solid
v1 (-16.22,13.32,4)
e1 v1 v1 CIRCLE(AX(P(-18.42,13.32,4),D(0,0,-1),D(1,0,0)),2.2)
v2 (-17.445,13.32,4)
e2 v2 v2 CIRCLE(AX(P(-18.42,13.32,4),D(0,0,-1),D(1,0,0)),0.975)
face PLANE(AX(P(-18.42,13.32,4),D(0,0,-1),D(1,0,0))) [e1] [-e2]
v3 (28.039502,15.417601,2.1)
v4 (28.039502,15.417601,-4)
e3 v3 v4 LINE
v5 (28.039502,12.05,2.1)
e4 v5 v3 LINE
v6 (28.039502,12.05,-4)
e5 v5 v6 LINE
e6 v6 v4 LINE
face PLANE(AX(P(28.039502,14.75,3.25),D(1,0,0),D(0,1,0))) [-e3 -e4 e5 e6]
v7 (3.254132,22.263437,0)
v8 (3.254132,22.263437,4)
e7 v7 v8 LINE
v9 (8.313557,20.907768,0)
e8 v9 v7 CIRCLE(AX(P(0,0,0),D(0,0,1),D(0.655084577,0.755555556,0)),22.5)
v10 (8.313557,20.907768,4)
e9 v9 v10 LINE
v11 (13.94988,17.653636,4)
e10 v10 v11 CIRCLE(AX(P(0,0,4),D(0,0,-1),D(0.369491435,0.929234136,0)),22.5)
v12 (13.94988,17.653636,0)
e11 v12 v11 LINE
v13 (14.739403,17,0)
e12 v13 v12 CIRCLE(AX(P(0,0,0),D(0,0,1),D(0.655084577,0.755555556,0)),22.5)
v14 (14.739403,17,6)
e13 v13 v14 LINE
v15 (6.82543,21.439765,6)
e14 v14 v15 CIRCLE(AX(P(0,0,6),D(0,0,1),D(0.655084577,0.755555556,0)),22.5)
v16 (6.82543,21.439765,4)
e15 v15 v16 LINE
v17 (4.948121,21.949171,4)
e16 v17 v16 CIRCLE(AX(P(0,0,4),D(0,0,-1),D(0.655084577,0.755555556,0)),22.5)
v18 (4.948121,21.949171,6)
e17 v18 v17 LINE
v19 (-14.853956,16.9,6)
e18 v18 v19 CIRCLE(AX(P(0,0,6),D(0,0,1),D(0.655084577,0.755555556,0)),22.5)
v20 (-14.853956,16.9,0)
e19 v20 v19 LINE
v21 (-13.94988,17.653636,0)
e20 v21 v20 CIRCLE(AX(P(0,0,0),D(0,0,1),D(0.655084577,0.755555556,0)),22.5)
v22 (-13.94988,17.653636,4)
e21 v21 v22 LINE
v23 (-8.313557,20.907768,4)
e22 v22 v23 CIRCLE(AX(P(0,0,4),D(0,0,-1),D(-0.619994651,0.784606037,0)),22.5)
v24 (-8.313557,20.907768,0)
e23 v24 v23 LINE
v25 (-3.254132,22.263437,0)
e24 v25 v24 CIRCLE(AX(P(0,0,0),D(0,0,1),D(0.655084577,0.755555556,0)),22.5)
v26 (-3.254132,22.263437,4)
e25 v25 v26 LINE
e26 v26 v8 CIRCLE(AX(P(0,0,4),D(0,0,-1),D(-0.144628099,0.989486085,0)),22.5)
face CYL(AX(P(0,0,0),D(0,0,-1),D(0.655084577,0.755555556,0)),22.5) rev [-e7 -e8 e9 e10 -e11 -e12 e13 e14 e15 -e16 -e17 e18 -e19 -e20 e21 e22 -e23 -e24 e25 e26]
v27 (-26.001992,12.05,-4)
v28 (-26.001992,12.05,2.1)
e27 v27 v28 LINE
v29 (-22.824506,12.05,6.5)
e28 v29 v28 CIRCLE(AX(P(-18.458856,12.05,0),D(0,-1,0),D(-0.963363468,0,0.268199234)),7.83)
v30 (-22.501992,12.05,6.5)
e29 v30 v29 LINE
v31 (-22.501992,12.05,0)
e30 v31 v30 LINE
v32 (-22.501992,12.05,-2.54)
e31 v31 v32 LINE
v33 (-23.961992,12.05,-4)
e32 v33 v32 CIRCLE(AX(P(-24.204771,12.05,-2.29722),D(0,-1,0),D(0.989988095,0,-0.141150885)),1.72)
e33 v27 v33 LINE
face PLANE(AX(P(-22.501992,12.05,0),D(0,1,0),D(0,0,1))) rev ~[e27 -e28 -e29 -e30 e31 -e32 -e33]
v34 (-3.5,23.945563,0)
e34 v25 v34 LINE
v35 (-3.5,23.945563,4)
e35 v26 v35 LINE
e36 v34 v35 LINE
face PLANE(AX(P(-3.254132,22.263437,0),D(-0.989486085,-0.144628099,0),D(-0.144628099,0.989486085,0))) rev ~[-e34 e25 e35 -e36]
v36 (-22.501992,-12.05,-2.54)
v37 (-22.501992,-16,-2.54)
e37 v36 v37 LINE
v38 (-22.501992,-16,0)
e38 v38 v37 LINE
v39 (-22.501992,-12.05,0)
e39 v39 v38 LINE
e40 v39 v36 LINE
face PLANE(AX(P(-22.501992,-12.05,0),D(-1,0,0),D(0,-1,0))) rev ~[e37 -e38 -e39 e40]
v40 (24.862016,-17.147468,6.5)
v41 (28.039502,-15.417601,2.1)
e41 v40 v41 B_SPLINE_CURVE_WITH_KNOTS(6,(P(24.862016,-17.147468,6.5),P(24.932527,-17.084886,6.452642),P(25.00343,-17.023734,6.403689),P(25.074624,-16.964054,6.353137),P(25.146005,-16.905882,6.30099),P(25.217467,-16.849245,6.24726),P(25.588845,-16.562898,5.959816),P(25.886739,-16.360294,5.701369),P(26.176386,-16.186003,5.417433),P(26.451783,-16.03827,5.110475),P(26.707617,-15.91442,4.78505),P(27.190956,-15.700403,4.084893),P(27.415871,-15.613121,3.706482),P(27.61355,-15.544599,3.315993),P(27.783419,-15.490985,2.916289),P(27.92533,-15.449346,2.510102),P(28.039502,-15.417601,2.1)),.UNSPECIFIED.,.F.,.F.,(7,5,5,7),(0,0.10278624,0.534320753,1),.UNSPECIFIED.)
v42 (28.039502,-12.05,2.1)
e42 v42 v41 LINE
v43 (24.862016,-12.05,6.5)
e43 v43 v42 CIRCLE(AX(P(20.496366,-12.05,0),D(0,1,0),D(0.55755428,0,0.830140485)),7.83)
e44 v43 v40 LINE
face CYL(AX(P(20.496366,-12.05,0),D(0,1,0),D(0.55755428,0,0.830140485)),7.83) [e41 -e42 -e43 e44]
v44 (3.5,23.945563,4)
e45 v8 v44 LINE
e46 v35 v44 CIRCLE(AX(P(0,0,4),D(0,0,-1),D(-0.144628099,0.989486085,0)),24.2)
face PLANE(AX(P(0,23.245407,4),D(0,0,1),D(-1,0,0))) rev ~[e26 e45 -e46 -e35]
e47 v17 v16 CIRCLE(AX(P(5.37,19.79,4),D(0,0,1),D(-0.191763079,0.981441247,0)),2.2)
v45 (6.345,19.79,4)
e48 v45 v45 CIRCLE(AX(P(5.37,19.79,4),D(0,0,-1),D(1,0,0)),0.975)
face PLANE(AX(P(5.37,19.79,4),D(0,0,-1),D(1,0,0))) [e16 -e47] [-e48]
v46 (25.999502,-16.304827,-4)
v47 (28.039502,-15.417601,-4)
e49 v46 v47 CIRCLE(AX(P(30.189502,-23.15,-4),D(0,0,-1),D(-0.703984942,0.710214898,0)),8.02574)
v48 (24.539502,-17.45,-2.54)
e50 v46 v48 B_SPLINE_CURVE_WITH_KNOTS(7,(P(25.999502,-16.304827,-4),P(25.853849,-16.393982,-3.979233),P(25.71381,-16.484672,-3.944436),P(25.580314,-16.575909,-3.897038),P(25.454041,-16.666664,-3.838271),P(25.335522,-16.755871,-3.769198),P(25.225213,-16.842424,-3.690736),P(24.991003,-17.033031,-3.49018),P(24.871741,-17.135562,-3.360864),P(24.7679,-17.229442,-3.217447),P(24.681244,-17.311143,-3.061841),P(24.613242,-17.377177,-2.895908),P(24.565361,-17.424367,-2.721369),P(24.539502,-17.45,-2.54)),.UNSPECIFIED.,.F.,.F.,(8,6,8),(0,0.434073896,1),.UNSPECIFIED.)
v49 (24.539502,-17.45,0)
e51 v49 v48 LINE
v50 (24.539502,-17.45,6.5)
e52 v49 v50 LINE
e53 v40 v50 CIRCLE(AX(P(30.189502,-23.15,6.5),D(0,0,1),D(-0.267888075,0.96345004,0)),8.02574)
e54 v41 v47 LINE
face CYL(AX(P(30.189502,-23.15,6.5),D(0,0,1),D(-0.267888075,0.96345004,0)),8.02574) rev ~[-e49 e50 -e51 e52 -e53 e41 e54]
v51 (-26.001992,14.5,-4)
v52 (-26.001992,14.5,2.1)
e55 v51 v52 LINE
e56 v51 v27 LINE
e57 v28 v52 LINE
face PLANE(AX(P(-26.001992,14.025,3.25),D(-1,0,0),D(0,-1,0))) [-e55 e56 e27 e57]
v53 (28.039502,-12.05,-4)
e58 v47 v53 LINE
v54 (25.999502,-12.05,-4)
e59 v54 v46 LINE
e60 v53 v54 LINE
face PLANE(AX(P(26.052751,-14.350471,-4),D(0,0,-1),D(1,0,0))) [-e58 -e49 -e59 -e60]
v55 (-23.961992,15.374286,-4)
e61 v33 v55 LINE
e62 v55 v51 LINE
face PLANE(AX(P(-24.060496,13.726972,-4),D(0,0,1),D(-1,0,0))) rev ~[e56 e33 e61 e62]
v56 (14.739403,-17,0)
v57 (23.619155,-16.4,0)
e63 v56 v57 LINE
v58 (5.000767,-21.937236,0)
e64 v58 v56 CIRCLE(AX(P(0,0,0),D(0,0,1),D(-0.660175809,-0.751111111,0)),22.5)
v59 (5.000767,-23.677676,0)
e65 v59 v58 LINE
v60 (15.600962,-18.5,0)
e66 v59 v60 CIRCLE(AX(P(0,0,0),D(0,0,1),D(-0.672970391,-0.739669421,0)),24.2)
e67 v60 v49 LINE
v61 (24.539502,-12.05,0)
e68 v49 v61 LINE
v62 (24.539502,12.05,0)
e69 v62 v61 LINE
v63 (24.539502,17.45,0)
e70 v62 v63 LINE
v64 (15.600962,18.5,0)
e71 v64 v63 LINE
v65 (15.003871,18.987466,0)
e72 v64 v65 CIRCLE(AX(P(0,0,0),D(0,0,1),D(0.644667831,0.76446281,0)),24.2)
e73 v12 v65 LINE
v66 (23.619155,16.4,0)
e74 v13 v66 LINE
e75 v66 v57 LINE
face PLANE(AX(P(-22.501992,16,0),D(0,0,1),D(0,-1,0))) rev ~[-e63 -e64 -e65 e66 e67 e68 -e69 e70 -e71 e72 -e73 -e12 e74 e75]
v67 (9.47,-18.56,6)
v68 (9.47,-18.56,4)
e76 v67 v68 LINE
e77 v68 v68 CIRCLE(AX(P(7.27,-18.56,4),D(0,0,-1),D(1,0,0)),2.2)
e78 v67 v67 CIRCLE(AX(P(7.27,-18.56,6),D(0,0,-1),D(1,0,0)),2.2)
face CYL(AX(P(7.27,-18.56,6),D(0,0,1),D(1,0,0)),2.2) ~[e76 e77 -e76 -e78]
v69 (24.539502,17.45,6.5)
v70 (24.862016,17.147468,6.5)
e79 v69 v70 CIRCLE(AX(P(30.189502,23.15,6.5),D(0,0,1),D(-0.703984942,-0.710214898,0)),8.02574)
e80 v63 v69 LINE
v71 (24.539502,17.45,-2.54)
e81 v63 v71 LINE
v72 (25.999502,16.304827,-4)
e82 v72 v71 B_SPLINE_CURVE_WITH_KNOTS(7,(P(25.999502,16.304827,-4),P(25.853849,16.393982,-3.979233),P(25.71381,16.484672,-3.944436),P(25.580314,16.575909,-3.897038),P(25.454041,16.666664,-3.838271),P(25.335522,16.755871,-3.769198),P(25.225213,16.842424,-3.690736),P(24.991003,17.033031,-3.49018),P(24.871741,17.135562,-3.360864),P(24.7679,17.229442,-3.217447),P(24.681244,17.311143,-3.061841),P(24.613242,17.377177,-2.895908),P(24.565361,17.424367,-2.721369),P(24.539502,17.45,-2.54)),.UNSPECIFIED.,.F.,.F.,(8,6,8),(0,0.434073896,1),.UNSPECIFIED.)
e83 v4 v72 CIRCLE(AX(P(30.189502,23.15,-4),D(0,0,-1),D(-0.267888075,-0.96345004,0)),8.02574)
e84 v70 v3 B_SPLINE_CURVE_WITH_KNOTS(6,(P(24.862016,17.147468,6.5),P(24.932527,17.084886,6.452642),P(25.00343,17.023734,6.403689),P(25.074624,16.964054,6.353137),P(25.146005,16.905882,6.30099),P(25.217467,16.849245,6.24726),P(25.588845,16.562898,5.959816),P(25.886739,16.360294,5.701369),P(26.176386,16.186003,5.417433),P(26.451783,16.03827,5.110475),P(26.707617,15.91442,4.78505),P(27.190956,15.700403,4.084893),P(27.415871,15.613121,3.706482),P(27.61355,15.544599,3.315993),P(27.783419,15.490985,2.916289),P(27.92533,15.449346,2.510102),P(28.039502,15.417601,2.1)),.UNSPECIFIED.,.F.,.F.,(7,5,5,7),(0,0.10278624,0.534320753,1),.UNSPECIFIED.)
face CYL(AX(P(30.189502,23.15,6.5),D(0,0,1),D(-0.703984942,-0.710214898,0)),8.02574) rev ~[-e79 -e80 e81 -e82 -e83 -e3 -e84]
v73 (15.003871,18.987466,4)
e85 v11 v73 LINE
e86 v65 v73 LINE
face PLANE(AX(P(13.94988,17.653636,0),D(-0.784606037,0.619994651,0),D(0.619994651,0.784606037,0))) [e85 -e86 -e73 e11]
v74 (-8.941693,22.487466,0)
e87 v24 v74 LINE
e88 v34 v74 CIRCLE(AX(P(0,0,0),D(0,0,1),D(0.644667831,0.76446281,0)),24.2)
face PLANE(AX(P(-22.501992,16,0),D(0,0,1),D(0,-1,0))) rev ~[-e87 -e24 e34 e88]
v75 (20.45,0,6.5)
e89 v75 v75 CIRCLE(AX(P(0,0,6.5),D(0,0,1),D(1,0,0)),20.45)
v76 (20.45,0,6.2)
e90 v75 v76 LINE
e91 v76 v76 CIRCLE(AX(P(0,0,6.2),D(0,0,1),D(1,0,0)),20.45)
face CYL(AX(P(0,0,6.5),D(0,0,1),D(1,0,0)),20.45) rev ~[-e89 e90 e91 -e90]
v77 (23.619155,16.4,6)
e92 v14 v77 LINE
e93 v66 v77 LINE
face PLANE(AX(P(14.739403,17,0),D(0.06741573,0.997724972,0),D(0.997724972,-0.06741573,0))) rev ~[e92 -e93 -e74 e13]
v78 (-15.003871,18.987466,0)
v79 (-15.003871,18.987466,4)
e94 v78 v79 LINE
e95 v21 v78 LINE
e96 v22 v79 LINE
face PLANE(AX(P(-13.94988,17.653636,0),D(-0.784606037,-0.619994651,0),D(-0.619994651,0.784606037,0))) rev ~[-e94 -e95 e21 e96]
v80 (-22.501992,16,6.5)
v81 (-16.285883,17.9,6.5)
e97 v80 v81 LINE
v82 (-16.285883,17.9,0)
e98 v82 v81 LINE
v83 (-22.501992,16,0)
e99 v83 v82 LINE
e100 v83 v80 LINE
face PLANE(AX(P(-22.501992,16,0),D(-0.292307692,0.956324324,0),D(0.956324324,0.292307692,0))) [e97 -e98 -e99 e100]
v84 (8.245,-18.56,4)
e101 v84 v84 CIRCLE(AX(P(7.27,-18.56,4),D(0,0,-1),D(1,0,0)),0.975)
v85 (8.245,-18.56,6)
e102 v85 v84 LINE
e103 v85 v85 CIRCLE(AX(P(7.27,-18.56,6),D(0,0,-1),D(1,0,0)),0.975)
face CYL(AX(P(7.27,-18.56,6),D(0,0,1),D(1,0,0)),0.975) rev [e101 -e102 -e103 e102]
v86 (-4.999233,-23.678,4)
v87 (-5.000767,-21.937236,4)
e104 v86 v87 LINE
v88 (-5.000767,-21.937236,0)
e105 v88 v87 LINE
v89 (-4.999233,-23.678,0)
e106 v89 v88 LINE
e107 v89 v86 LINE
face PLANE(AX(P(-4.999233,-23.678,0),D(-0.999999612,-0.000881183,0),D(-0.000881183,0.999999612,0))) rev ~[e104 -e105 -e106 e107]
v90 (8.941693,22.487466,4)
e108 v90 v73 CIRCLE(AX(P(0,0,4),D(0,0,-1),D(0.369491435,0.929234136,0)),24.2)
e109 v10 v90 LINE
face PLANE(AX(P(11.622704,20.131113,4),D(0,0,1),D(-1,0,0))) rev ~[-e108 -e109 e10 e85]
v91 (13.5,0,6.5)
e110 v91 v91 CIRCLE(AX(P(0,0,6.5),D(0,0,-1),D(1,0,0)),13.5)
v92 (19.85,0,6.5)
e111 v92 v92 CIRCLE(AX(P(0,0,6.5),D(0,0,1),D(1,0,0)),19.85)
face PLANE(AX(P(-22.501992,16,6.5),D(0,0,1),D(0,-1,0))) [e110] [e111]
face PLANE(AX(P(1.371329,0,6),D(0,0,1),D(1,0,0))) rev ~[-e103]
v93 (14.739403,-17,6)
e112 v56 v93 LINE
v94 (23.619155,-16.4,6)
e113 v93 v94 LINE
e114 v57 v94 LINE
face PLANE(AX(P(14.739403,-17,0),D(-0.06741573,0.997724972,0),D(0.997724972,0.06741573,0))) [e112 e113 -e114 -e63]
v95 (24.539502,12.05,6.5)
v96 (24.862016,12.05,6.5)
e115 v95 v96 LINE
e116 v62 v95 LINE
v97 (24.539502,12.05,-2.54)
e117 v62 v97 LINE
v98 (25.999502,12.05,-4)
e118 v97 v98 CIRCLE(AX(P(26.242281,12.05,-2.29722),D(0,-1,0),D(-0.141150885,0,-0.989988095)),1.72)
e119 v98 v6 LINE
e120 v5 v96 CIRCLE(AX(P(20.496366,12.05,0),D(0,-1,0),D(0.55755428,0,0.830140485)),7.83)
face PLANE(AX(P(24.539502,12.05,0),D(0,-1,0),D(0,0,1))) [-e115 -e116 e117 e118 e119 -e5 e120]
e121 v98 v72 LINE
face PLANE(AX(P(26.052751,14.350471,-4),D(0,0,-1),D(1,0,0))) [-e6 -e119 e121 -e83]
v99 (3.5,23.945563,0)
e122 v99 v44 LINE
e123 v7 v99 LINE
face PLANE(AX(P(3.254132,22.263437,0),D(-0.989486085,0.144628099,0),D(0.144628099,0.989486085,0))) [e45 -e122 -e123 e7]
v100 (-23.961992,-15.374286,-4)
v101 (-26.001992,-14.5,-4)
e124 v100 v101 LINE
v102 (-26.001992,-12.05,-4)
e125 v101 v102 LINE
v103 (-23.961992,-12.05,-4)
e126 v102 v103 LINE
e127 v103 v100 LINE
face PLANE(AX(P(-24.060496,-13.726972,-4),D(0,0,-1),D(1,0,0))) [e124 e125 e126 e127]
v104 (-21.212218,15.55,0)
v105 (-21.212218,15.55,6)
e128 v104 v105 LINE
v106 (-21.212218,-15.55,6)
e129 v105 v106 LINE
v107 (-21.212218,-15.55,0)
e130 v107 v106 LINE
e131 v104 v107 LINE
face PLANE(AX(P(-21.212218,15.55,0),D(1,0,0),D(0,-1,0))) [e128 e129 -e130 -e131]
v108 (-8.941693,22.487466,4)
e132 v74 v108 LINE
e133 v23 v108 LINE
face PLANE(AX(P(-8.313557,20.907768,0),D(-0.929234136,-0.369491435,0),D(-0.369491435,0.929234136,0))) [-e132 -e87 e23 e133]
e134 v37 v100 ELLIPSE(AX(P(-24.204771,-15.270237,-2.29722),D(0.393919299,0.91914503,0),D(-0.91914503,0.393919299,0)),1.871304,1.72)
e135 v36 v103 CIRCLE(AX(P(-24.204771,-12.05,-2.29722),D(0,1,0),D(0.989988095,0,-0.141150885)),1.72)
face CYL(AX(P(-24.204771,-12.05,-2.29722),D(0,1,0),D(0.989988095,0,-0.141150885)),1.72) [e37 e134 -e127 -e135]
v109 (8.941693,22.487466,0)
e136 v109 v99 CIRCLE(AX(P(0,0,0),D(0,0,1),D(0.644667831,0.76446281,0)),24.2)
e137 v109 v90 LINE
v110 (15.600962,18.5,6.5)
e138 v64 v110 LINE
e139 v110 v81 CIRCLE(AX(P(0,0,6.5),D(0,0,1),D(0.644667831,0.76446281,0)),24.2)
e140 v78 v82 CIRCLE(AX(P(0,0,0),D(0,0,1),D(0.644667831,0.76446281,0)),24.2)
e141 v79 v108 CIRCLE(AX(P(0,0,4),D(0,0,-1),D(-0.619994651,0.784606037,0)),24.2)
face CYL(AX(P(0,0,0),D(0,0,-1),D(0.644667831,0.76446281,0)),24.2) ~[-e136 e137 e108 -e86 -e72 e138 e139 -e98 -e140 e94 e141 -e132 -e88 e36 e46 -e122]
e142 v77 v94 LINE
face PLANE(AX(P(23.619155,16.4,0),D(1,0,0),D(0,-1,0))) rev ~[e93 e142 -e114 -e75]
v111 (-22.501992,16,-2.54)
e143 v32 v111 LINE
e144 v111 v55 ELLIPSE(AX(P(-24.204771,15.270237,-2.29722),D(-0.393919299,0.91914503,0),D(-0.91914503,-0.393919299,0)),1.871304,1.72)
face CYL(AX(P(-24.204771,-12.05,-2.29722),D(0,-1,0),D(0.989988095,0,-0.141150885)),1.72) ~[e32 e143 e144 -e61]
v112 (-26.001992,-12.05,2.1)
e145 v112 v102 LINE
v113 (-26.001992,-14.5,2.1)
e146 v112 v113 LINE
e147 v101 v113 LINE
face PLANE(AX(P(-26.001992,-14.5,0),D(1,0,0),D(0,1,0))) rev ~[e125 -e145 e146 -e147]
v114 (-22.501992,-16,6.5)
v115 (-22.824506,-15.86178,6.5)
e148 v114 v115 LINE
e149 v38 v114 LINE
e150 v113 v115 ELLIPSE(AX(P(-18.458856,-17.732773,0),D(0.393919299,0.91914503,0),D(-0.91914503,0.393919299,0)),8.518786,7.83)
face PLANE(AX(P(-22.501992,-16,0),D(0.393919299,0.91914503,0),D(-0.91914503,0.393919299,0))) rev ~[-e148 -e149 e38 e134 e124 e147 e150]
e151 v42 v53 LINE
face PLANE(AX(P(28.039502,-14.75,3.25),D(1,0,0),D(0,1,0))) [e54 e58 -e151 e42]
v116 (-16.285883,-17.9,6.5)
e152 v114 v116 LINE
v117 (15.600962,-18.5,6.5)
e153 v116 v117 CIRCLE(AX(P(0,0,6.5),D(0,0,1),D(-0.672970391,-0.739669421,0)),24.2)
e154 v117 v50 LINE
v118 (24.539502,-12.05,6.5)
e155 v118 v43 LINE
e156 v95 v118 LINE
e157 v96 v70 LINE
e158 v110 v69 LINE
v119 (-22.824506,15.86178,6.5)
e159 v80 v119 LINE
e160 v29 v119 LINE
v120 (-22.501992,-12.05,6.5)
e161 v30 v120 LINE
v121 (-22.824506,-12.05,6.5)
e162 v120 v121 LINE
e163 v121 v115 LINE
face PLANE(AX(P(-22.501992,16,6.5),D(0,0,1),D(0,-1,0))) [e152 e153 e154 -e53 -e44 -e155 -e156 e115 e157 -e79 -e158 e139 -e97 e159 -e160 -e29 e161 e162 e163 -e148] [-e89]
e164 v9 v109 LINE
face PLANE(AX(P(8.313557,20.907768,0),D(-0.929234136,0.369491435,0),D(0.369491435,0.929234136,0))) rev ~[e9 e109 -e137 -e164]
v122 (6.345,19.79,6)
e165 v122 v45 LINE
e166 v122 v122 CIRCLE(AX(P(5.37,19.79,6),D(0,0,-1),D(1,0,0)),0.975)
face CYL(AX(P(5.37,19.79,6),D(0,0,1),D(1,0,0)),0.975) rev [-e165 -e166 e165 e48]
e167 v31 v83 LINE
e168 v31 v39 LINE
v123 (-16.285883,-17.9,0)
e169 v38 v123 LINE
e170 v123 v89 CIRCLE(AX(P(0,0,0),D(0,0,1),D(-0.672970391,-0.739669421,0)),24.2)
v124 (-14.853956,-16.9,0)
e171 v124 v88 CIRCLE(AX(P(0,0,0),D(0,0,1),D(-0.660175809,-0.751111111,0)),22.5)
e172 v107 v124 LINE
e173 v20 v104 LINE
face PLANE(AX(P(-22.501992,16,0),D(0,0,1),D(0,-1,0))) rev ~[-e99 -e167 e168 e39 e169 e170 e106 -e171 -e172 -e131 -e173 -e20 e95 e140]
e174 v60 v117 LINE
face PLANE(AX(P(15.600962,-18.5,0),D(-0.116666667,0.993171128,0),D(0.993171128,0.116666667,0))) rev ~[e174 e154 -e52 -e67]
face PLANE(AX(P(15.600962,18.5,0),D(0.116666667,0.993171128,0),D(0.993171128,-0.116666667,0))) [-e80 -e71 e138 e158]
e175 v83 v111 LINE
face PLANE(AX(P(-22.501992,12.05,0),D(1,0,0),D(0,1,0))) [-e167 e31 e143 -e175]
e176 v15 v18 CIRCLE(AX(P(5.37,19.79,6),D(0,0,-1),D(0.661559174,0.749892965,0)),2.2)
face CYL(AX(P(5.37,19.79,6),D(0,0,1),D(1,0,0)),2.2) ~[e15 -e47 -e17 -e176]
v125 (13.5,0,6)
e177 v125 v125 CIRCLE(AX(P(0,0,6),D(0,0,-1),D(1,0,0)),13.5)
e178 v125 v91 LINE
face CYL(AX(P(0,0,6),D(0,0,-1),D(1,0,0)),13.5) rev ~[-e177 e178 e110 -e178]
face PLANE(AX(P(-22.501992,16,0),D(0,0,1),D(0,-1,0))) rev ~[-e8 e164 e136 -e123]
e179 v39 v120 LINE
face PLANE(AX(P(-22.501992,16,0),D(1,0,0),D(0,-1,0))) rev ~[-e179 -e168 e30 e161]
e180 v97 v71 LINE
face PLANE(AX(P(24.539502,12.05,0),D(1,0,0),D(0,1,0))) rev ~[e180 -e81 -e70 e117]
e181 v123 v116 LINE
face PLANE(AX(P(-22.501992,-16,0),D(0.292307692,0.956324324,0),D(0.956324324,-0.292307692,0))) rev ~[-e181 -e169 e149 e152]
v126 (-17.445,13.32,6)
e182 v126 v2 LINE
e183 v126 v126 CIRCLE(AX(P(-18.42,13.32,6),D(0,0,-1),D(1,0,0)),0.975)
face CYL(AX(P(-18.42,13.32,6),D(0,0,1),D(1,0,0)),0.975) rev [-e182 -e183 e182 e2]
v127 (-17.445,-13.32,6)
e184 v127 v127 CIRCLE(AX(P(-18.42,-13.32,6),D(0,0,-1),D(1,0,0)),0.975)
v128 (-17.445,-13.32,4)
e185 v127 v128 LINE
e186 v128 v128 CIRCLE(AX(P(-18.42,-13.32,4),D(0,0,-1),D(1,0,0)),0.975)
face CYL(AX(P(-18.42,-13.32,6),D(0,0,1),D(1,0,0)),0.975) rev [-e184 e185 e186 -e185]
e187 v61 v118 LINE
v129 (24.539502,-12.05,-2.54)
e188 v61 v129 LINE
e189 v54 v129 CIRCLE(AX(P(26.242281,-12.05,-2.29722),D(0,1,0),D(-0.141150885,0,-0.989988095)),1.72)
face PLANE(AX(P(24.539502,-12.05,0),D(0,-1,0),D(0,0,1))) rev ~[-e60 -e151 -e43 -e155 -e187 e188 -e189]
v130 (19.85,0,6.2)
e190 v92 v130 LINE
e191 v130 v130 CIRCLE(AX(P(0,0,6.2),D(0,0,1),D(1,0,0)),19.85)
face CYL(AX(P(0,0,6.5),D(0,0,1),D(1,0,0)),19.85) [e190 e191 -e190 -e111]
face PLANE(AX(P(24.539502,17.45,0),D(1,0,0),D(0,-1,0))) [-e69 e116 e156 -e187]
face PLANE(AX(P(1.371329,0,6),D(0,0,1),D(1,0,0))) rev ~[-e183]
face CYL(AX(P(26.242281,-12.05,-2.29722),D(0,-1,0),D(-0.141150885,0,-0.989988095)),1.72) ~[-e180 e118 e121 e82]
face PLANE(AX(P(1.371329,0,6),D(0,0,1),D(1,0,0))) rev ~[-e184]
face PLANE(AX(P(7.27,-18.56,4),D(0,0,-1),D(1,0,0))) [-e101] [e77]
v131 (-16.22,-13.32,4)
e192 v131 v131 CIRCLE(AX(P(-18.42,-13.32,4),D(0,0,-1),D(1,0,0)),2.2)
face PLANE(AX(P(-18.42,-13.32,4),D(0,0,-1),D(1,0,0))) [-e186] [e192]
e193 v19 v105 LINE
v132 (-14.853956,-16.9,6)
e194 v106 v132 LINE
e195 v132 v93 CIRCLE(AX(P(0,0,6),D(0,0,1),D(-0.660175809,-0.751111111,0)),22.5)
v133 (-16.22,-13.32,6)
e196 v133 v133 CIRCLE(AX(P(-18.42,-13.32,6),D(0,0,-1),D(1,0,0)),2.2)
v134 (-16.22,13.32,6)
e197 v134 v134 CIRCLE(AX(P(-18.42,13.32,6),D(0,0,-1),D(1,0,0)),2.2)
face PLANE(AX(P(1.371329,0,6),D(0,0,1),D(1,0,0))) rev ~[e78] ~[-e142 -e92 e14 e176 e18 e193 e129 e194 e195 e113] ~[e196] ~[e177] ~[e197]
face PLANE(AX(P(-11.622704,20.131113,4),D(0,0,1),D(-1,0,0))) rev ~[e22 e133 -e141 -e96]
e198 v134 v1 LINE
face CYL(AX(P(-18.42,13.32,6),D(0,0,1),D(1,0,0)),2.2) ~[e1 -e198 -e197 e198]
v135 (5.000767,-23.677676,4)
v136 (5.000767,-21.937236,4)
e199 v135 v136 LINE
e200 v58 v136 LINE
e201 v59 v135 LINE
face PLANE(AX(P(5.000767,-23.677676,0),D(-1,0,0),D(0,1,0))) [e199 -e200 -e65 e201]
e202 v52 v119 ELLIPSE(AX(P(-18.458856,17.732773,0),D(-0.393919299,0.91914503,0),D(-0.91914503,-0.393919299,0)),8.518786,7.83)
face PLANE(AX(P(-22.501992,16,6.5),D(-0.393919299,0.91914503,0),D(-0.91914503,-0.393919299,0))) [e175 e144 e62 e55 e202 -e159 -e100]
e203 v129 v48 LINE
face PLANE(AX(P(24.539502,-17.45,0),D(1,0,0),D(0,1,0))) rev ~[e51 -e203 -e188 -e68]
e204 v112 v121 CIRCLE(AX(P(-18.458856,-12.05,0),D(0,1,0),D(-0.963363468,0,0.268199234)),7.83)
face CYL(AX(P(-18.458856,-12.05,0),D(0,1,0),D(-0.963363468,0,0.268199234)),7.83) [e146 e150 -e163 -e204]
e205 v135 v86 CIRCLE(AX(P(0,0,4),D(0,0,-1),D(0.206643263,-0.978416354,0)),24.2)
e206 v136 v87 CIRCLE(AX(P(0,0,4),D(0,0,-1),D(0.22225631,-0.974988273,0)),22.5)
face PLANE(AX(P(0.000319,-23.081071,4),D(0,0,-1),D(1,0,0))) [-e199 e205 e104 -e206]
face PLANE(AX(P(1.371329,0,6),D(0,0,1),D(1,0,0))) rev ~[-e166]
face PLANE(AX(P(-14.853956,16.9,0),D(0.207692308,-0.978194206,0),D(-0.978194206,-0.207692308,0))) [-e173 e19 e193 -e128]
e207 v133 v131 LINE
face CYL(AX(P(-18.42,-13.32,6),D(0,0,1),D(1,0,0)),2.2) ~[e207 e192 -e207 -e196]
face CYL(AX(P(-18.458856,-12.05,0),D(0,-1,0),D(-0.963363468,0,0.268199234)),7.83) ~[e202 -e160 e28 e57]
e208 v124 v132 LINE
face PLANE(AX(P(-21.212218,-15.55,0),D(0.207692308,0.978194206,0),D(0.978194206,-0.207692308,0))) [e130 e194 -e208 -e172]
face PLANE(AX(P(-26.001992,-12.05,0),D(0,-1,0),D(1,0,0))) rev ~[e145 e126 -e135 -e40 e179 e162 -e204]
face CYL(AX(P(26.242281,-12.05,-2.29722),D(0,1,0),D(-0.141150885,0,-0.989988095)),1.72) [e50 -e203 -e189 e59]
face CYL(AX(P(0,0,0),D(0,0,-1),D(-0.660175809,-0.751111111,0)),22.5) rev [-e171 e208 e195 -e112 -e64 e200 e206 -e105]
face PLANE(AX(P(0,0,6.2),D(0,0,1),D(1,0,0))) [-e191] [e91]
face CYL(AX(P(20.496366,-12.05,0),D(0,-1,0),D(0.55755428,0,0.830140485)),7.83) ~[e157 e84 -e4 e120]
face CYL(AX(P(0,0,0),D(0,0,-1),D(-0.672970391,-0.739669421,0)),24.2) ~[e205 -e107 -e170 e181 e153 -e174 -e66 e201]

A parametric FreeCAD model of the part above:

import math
import FreeCAD as App
import Part
import Sketcher
from FreeCAD import Vector

doc = App.newDocument("Part")
body = doc.addObject("PartDesign::Body", "Body")

# Sketch on XY plane
sketch1 = body.newObject("Sketcher::SketchObject", "Sketch")
sketch1.AttachmentSupport = (doc.getObject("XY_Plane"), [""])
sketch1.MapMode = "FlatFace"
sketch1.addGeometry([
    Part.LineSegment(Vector(-23, 16, 0), Vector(-23, -16, 0)),  # 0
    Part.LineSegment(Vector(-23, -16, 0), Vector(-16, -18, 0)),  # 1
    Part.ArcOfCircle(Part.Circle(Vector(0, 0, 0), Vector(0, 0, 1), 24), math.radians(-132), math.radians(-50)),  # 2
    Part.LineSegment(Vector(16, -18, 0), Vector(25, -17, 0)),  # 3
    Part.LineSegment(Vector(25, -17, 0), Vector(25, 17, 0)),  # 4
    Part.LineSegment(Vector(25, 17, 0), Vector(16, 18, 0)),  # 5
    Part.ArcOfCircle(Part.Circle(Vector(0, 0, 0), Vector(0, 0, 1), 24), math.radians(50), math.radians(132)),  # 6
    Part.LineSegment(Vector(-16, 18, 0), Vector(-23, 16, 0)),  # 7
], False)
sketch1.addConstraint([
    Sketcher.Constraint("Coincident", 0, 2, 1, 1),
    Sketcher.Constraint("Coincident", 1, 2, 2, 1),
    Sketcher.Constraint("Coincident", 2, 2, 3, 1),
    Sketcher.Constraint("Coincident", 3, 2, 4, 1),
    Sketcher.Constraint("Coincident", 4, 2, 5, 1),
    Sketcher.Constraint("Coincident", 5, 2, 6, 1),
    Sketcher.Constraint("Coincident", 6, 2, 7, 1),
    Sketcher.Constraint("Coincident", 7, 2, 0, 1),
    Sketcher.Constraint("Vertical", 0),
    Sketcher.Constraint("Vertical", 4),
    Sketcher.Constraint("Coincident", 2, 3, -1, 1),
    Sketcher.Constraint("Coincident", 6, 3, -1, 1),
    Sketcher.Constraint("Equal", 2, 6),
    Sketcher.Constraint("Vertical", 2, 2, 5, 2),
    Sketcher.Constraint("Vertical", 1, 2, 6, 2),
    Sketcher.Constraint("Equal", 3, 5),
    Sketcher.Constraint("Equal", 1, 7),
    Sketcher.Constraint("Radius", 2, 24.2),
    Sketcher.Constraint("DistanceY", 0, 2, 0, 1, 32.0),
    Sketcher.Constraint("Distance", 3, 9.0),
    Sketcher.Constraint("DistanceY", 4, 1, 4, 2, 34.9),
    Sketcher.Constraint("DistanceY", 2, 2, 5, 2, 37.0),
    Sketcher.Constraint("Distance", 1, 6.5),
    Sketcher.Constraint("DistanceY", 1, 2, -1, 1, 17.9),
])
pad1 = body.newObject("PartDesign::Pad", "Pad")
pad1.Profile = sketch1
pad1.Length = 6.5

# Sketch on XY plane
sketch2 = body.newObject("Sketcher::SketchObject", "Sketch001")
sketch2.AttachmentSupport = (doc.getObject("XY_Plane"), [""])
sketch2.MapMode = "FlatFace"
sketch2.addGeometry([
    Part.LineSegment(Vector(-15, 17, 0), Vector(-21, 16, 0)),  # 0
    Part.LineSegment(Vector(-21, 16, 0), Vector(-21, -16, 0)),  # 1
    Part.LineSegment(Vector(-21, -16, 0), Vector(-15, -17, 0)),  # 2
    Part.ArcOfCircle(Part.Circle(Vector(0, 0, 0), Vector(0, 0, 1), 22), math.radians(-131), math.radians(-49)),  # 3
    Part.LineSegment(Vector(15, -17, 0), Vector(24, -16, 0)),  # 4
    Part.LineSegment(Vector(24, -16, 0), Vector(24, 16, 0)),  # 5
    Part.LineSegment(Vector(24, 16, 0), Vector(15, 17, 0)),  # 6
    Part.ArcOfCircle(Part.Circle(Vector(0, 0, 0), Vector(0, 0, 1), 22), math.radians(49), math.radians(131)),  # 7
], False)
sketch2.addConstraint([
    Sketcher.Constraint("Coincident", 0, 2, 1, 1),
    Sketcher.Constraint("Coincident", 1, 2, 2, 1),
    Sketcher.Constraint("Coincident", 2, 2, 3, 1),
    Sketcher.Constraint("Coincident", 3, 2, 4, 1),
    Sketcher.Constraint("Coincident", 4, 2, 5, 1),
    Sketcher.Constraint("Coincident", 5, 2, 6, 1),
    Sketcher.Constraint("Coincident", 6, 2, 7, 1),
    Sketcher.Constraint("Coincident", 7, 2, 0, 1),
    Sketcher.Constraint("Vertical", 1),
    Sketcher.Constraint("Vertical", 5),
    Sketcher.Constraint("Coincident", 3, 3, -1, 1),
    Sketcher.Constraint("Coincident", 7, 3, -1, 1),
    Sketcher.Constraint("Equal", 3, 7),
    Sketcher.Constraint("Vertical", 3, 2, 6, 2),
    Sketcher.Constraint("Vertical", 2, 2, 7, 2),
    Sketcher.Constraint("Equal", 0, 2),
    Sketcher.Constraint("Equal", 4, 6),
    Sketcher.Constraint("Radius", 3, 22.5),
    Sketcher.Constraint("DistanceY", 1, 2, 1, 1, 31.1),
    Sketcher.Constraint("DistanceY", 5, 1, 5, 2, 32.8),
    Sketcher.Constraint("DistanceY", 3, 2, -1, 1, 17.0),
    Sketcher.Constraint("Distance", 0, 6.5),
    Sketcher.Constraint("Distance", 4, 8.9),
    Sketcher.Constraint("DistanceY", 2, 2, -1, 1, 16.9),
])
pocket1 = body.newObject("PartDesign::Pocket", "Pocket")
pocket1.Profile = sketch2
pocket1.Length = 6
pocket1.Reversed = True

# Sketch on XY plane
sketch3 = body.newObject("Sketcher::SketchObject", "Sketch002")
sketch3.AttachmentSupport = (doc.getObject("XY_Plane"), [""])
sketch3.MapMode = "FlatFace"
sketch3.AttachmentOffset = App.Placement(Vector(0, 0, 6), App.Rotation())
sketch3.addGeometry(Part.Circle(Vector(0, 0, 0), Vector(0, 0, 1), 14), False)
sketch3.addConstraint([
    Sketcher.Constraint("Coincident", 0, 3, -1, 1),
    Sketcher.Constraint("Diameter", 0, 27.0),
])
pocket2 = body.newObject("PartDesign::Pocket", "Pocket001")
pocket2.Profile = sketch3
pocket2.Length = 1
pocket2.Reversed = True

# Sketch on YZ plane
sketch4 = body.newObject("Sketcher::SketchObject", "Sketch003")
sketch4.AttachmentSupport = (doc.getObject("YZ_Plane"), [""])
sketch4.MapMode = "FlatFace"
sketch4.AttachmentOffset = App.Placement(Vector(0, 0, 24.539502), App.Rotation())
sketch4.addGeometry([
    Part.LineSegment(Vector(-17, 6, 0), Vector(-17, 0, 0)),  # 0
    Part.LineSegment(Vector(-17, 0, 0), Vector(-12, 0, 0)),  # 1
    Part.LineSegment(Vector(-12, 0, 0), Vector(-12, 6, 0)),  # 2
    Part.LineSegment(Vector(-12, 6, 0), Vector(-17, 6, 0)),  # 3
    Part.LineSegment(Vector(12, 6, 0), Vector(12, 0, 0)),  # 4
    Part.LineSegment(Vector(12, 0, 0), Vector(17, 0, 0)),  # 5
    Part.LineSegment(Vector(17, 0, 0), Vector(17, 6, 0)),  # 6
    Part.LineSegment(Vector(17, 6, 0), Vector(12, 6, 0)),  # 7
], False)
sketch4.addConstraint([
    Sketcher.Constraint("Coincident", 0, 2, 1, 1),
    Sketcher.Constraint("Coincident", 1, 2, 2, 1),
    Sketcher.Constraint("Coincident", 2, 2, 3, 1),
    Sketcher.Constraint("Coincident", 3, 2, 0, 1),
    Sketcher.Constraint("Coincident", 4, 2, 5, 1),
    Sketcher.Constraint("Coincident", 5, 2, 6, 1),
    Sketcher.Constraint("Coincident", 6, 2, 7, 1),
    Sketcher.Constraint("Coincident", 7, 2, 4, 1),
    Sketcher.Constraint("Vertical", 0),
    Sketcher.Constraint("Horizontal", 1),
    Sketcher.Constraint("Vertical", 2),
    Sketcher.Constraint("Horizontal", 3),
    Sketcher.Constraint("Vertical", 4),
    Sketcher.Constraint("Horizontal", 5),
    Sketcher.Constraint("Vertical", 6),
    Sketcher.Constraint("Horizontal", 7),
    Sketcher.Constraint("Symmetric", 1, 2, 4, 2, -1, 1),
    Sketcher.Constraint("Symmetric", 0, 2, 5, 2, -2),
    Sketcher.Constraint("Horizontal", 3, 2, 6, 2),
    Sketcher.Constraint("DistanceX", 1, 1, 1, 2, 5.4),
    Sketcher.Constraint("DistanceY", 0, 2, 0, 1, 6.5),
    Sketcher.Constraint("DistanceX", 1, 2, 4, 2, 24.1),
])
pad2 = body.newObject("PartDesign::Pad", "Pad001")
pad2.Profile = sketch4
pad2.Length = 3.5

# Sketch on XY plane
sketch5 = body.newObject("Sketcher::SketchObject", "Sketch004")
sketch5.AttachmentSupport = (doc.getObject("XY_Plane"), [""])
sketch5.MapMode = "FlatFace"
sketch5.AttachmentOffset = App.Placement(Vector(0, 0, 6.5), App.Rotation())
sketch5.addGeometry([
    Part.ArcOfCircle(Part.Circle(Vector(30.2, 23.1, 0), Vector(0, 0, 1), 8), math.radians(-135), math.radians(-106)),  # 0
    Part.LineSegment(Vector(28, 15.4, 0), Vector(28, 17.4, 0)),  # 1
    Part.LineSegment(Vector(28, 17.4, 0), Vector(24.5, 17.4, 0)),  # 2
    Part.ArcOfCircle(Part.Circle(Vector(30.2, -23.2, 0), Vector(0, 0, 1), 8), math.radians(106), math.radians(135)),  # 3
    Part.LineSegment(Vector(24.5, -17.4, 0), Vector(28, -17.4, 0)),  # 4
    Part.LineSegment(Vector(28, -17.4, 0), Vector(28, -15.4, 0)),  # 5
], False)
sketch5.addConstraint([
    Sketcher.Constraint("Coincident", 0, 2, 1, 1),
    Sketcher.Constraint("Coincident", 1, 2, 2, 1),
    Sketcher.Constraint("Coincident", 2, 2, 0, 1),
    Sketcher.Constraint("Coincident", 3, 2, 4, 1),
    Sketcher.Constraint("Coincident", 4, 2, 5, 1),
    Sketcher.Constraint("Coincident", 5, 2, 3, 1),
    Sketcher.Constraint("Vertical", 1),
    Sketcher.Constraint("Horizontal", 2),
    Sketcher.Constraint("Horizontal", 4),
    Sketcher.Constraint("Vertical", 5),
    Sketcher.Constraint("Equal", 0, 3),
    Sketcher.Constraint("Symmetric", 0, 3, 3, 3, -1),
    Sketcher.Constraint("Symmetric", 1, 2, 4, 2, -1),
    Sketcher.Constraint("DistanceX", 2, 2, 2, 1, 3.5),
    Sketcher.Constraint("DistanceY", 3, 3, 0, 3, 46.3),
    Sketcher.Constraint("DistanceY", 1, 2, 0, 3, 5.7),
    Sketcher.Constraint("Radius", 0, 8.02574),
    Sketcher.Constraint("DistanceX", -1, 1, 0, 3, 30.189502),
])
pocket3 = body.newObject("PartDesign::Pocket", "Pocket002")
pocket3.Profile = sketch5
pocket3.Length = 10

# Sketch on YZ plane
sketch6 = body.newObject("Sketcher::SketchObject", "Sketch005")
sketch6.AttachmentSupport = (doc.getObject("YZ_Plane"), [""])
sketch6.MapMode = "FlatFace"
sketch6.AttachmentOffset = App.Placement(Vector(0, 0, -22.501992), App.Rotation())
sketch6.addGeometry([
    Part.LineSegment(Vector(16, 6.5, 0), Vector(16, 0, 0)),  # 0
    Part.LineSegment(Vector(16, 0, 0), Vector(12.1, 0, 0)),  # 1
    Part.LineSegment(Vector(12.1, 0, 0), Vector(12.1, 6.5, 0)),  # 2
    Part.LineSegment(Vector(12.1, 6.5, 0), Vector(16, 6.5, 0)),  # 3
    Part.LineSegment(Vector(-12.1, 6.5, 0), Vector(-12.1, 0, 0)),  # 4
    Part.LineSegment(Vector(-12.1, 0, 0), Vector(-16, 0, 0)),  # 5
    Part.LineSegment(Vector(-16, 0, 0), Vector(-16, 6.5, 0)),  # 6
    Part.LineSegment(Vector(-16, 6.5, 0), Vector(-12.1, 6.5, 0)),  # 7
], False)
sketch6.addConstraint([
    Sketcher.Constraint("Coincident", 0, 2, 1, 1),
    Sketcher.Constraint("Coincident", 1, 2, 2, 1),
    Sketcher.Constraint("Coincident", 2, 2, 3, 1),
    Sketcher.Constraint("Coincident", 3, 2, 0, 1),
    Sketcher.Constraint("Coincident", 4, 2, 5, 1),
    Sketcher.Constraint("Coincident", 5, 2, 6, 1),
    Sketcher.Constraint("Coincident", 6, 2, 7, 1),
    Sketcher.Constraint("Coincident", 7, 2, 4, 1),
    Sketcher.Constraint("Vertical", 0),
    Sketcher.Constraint("Horizontal", 1),
    Sketcher.Constraint("Vertical", 2),
    Sketcher.Constraint("Horizontal", 3),
    Sketcher.Constraint("Vertical", 4),
    Sketcher.Constraint("Horizontal", 5),
    Sketcher.Constraint("Vertical", 6),
    Sketcher.Constraint("Horizontal", 7),
    Sketcher.Constraint("Symmetric", 1, 2, 4, 2, -1, 1),
    Sketcher.Constraint("Symmetric", 0, 2, 5, 2, -2),
    Sketcher.Constraint("Horizontal", 3, 2, 6, 2),
    Sketcher.Constraint("DistanceY", 0, 2, 0, 1, 6.5),
    Sketcher.Constraint("DistanceX", -1, 1, 0, 2, 16.0),
    Sketcher.Constraint("DistanceX", 1, 2, 1, 1, 3.95),
])
pad3 = body.newObject("PartDesign::Pad", "Pad002")
pad3.Profile = sketch6
pad3.Length = 3.5
pad3.Reversed = True

# Sketch on XY plane
sketch7 = body.newObject("Sketcher::SketchObject", "Sketch006")
sketch7.AttachmentSupport = (doc.getObject("XY_Plane"), [""])
sketch7.MapMode = "FlatFace"
sketch7.AttachmentOffset = App.Placement(Vector(0, 0, 6.5), App.Rotation())
sketch7.addGeometry([
    Part.LineSegment(Vector(-22.5, 16, 0), Vector(-26, 16, 0)),  # 0
    Part.LineSegment(Vector(-26, 16, 0), Vector(-26, 14.5, 0)),  # 1
    Part.LineSegment(Vector(-26, 14.5, 0), Vector(-22.5, 16, 0)),  # 2
    Part.LineSegment(Vector(-22.5, -16, 0), Vector(-26, -14.5, 0)),  # 3
    Part.LineSegment(Vector(-26, -14.5, 0), Vector(-26, -16, 0)),  # 4
    Part.LineSegment(Vector(-26, -16, 0), Vector(-22.5, -16, 0)),  # 5
], False)
sketch7.addConstraint([
    Sketcher.Constraint("Coincident", 0, 2, 1, 1),
    Sketcher.Constraint("Coincident", 1, 2, 2, 1),
    Sketcher.Constraint("Coincident", 2, 2, 0, 1),
    Sketcher.Constraint("Coincident", 3, 2, 4, 1),
    Sketcher.Constraint("Coincident", 4, 2, 5, 1),
    Sketcher.Constraint("Coincident", 5, 2, 3, 1),
    Sketcher.Constraint("Horizontal", 0),
    Sketcher.Constraint("Vertical", 1),
    Sketcher.Constraint("Vertical", 4),
    Sketcher.Constraint("Horizontal", 5),
    Sketcher.Constraint("Symmetric", 1, 2, 3, 2, -1),
    Sketcher.Constraint("Symmetric", 2, 2, 5, 2, -1),
    Sketcher.Constraint("DistanceX", 0, 2, 0, 1, 3.5),
    Sketcher.Constraint("DistanceY", 1, 2, 1, 1, 1.5),
    Sketcher.Constraint("DistanceY", -1, 1, 0, 2, 16.0),
    Sketcher.Constraint("DistanceX", 0, 2, -1, 1, 26.001992),
])
pocket4 = body.newObject("PartDesign::Pocket", "Pocket003")
pocket4.Profile = sketch7
pocket4.Length = 10

# Sketch on XY plane
sketch8 = body.newObject("Sketcher::SketchObject", "Sketch007")
sketch8.AttachmentSupport = (doc.getObject("XY_Plane"), [""])
sketch8.MapMode = "FlatFace"
sketch8.AttachmentOffset = App.Placement(Vector(0, 0, 6.5), App.Rotation())
sketch8.addGeometry([
    Part.Circle(Vector(0, 0, 0), Vector(0, 0, 1), 20),
    Part.Circle(Vector(0, 0, 0), Vector(0, 0, 1), 20),
], False)
sketch8.addConstraint([
    Sketcher.Constraint("Coincident", 0, 3, -1, 1),
    Sketcher.Constraint("Coincident", 1, 3, -1, 1),
    Sketcher.Constraint("Diameter", 0, 40.9),
    Sketcher.Constraint("Diameter", 1, 39.7),
])
pocket5 = body.newObject("PartDesign::Pocket", "Pocket004")
pocket5.Profile = sketch8
pocket5.Length = 0.3

# Sketch on XY plane
sketch9 = body.newObject("Sketcher::SketchObject", "Sketch008")
sketch9.AttachmentSupport = (doc.getObject("XY_Plane"), [""])
sketch9.MapMode = "FlatFace"
sketch9.AttachmentOffset = App.Placement(Vector(0, 0, 6), App.Rotation())
sketch9.addGeometry([
    Part.Circle(Vector(-18.4, -13.3, 0), Vector(0, 0, 1), 2.2),  # 0
    Part.Circle(Vector(-18.4, -13.3, 0), Vector(0, 0, 1), 1),  # 1
    Part.Circle(Vector(7.3, -18.6, 0), Vector(0, 0, 1), 2.2),  # 2
    Part.Circle(Vector(7.3, -18.6, 0), Vector(0, 0, 1), 1),  # 3
    Part.Circle(Vector(5.4, 19.8, 0), Vector(0, 0, 1), 2.2),  # 4
    Part.Circle(Vector(5.4, 19.8, 0), Vector(0, 0, 1), 1),  # 5
    Part.Circle(Vector(-18.4, 13.3, 0), Vector(0, 0, 1), 2.2),  # 6
    Part.Circle(Vector(-18.4, 13.3, 0), Vector(0, 0, 1), 1),  # 7
], False)
sketch9.addConstraint([
    Sketcher.Constraint("Coincident", 1, 3, 0, 3),
    Sketcher.Constraint("Coincident", 3, 3, 2, 3),
    Sketcher.Constraint("Coincident", 5, 3, 4, 3),
    Sketcher.Constraint("Coincident", 7, 3, 6, 3),
    Sketcher.Constraint("Equal", 0, 2),
    Sketcher.Constraint("Equal", 1, 3),
    Sketcher.Constraint("Equal", 2, 4),
    Sketcher.Constraint("Equal", 3, 5),
    Sketcher.Constraint("Equal", 4, 6),
    Sketcher.Constraint("Equal", 5, 7),
    Sketcher.Constraint("Symmetric", 0, 3, 6, 3, -1),
    Sketcher.Constraint("Diameter", 0, 4.4),
    Sketcher.Constraint("Diameter", 1, 1.95),
    Sketcher.Constraint("DistanceX", 4, 3, 2, 3, 1.9),
    Sketcher.Constraint("DistanceX", 0, 3, -1, 1, 18.42),
    Sketcher.Constraint("DistanceY", 0, 3, -1, 1, 13.32),
    Sketcher.Constraint("DistanceX", -1, 1, 2, 3, 7.27),
    Sketcher.Constraint("DistanceY", 2, 3, -1, 1, 18.56),
    Sketcher.Constraint("DistanceY", -1, 1, 4, 3, 19.79),
])
pad4 = body.newObject("PartDesign::Pad", "Pad003")
pad4.Profile = sketch9
pad4.Length = 2
pad4.Reversed = True

# Sketch on XY plane
sketch10 = body.newObject("Sketcher::SketchObject", "Sketch009")
sketch10.AttachmentSupport = (doc.getObject("XY_Plane"), [""])
sketch10.MapMode = "FlatFace"
sketch10.addGeometry([
    Part.LineSegment(Vector(-5, -23.7, 0), Vector(-5, -21.9, 0)),
    Part.ArcOfCircle(Part.Circle(Vector(0, 0, 0), Vector(0, 0, 1), 22.5), math.radians(-103), math.radians(-77)),
    Part.LineSegment(Vector(5, -21.9, 0), Vector(5, -23.7, 0)),
    Part.ArcOfCircle(Part.Circle(Vector(0, 0, 0), Vector(0, 0, 1), 24.2), math.radians(-102), math.radians(-78)),
], False)
sketch10.addConstraint([
    Sketcher.Constraint("Coincident", 0, 2, 1, 1),
    Sketcher.Constraint("Coincident", 1, 2, 2, 1),
    Sketcher.Constraint("Coincident", 2, 2, 3, 2),
    Sketcher.Constraint("Coincident", 3, 1, 0, 1),
    Sketcher.Constraint("Vertical", 2),
    Sketcher.Constraint("Coincident", 1, 3, -1, 1),
    Sketcher.Constraint("Coincident", 3, 3, -1, 1),
    Sketcher.Constraint("Horizontal", 0, 2, 1, 2),
    Sketcher.Constraint("Radius", 1, 22.5),
    Sketcher.Constraint("Radius", 3, 24.2),
    Sketcher.Constraint("DistanceX", 3, 1, 2, 2, 10.0),
    Sketcher.Constraint("DistanceY", 3, 1, -1, 1, 23.678),
])
pocket6 = body.newObject("PartDesign::Pocket", "Pocket005")
pocket6.Profile = sketch10
pocket6.Length = 4
pocket6.Reversed = True

# Sketch on XY plane
sketch11 = body.newObject("Sketcher::SketchObject", "Sketch010")
sketch11.AttachmentSupport = (doc.getObject("XY_Plane"), [""])
sketch11.MapMode = "FlatFace"
sketch11.addGeometry([
    Part.ArcOfCircle(Part.Circle(Vector(0, 0, 0), Vector(0, 0, 1), 22.5), math.radians(81.68), math.radians(98.32)),  # 0
    Part.LineSegment(Vector(-3.3, 22.3, 0), Vector(-3.5, 23.9, 0)),  # 1
    Part.ArcOfCircle(Part.Circle(Vector(0, 0, 0), Vector(0, 0, 1), 24.2), math.radians(81.68), math.radians(98.32)),  # 2
    Part.LineSegment(Vector(3.5, 23.9, 0), Vector(3.3, 22.3, 0)),  # 3
    Part.ArcOfCircle(Part.Circle(Vector(0, 0, 0), Vector(0, 0, 1), 22.5), math.radians(111.68), math.radians(128.32)),  # 4
    Part.LineSegment(Vector(-13.9, 17.7, 0), Vector(-15, 19, 0)),  # 5
    Part.ArcOfCircle(Part.Circle(Vector(0, 0, 0), Vector(0, 0, 1), 24.2), math.radians(111.68), math.radians(128.32)),  # 6
    Part.LineSegment(Vector(-8.9, 22.5, 0), Vector(-8.3, 20.9, 0)),  # 7
    Part.ArcOfCircle(Part.Circle(Vector(0, 0, 0), Vector(0, 0, 1), 22.5), math.radians(51.68), math.radians(68.32)),  # 8
    Part.LineSegment(Vector(8.3, 20.9, 0), Vector(8.9, 22.5, 0)),  # 9
    Part.ArcOfCircle(Part.Circle(Vector(0, 0, 0), Vector(0, 0, 1), 24.2), math.radians(51.68), math.radians(68.32)),  # 10
    Part.LineSegment(Vector(15, 19, 0), Vector(13.9, 17.7, 0)),  # 11
], False)
sketch11.addConstraint([
    Sketcher.Constraint("Coincident", 0, 2, 1, 1),
    Sketcher.Constraint("Coincident", 1, 2, 2, 2),
    Sketcher.Constraint("Coincident", 2, 1, 3, 1),
    Sketcher.Constraint("Coincident", 3, 2, 0, 1),
    Sketcher.Constraint("Coincident", 4, 2, 5, 1),
    Sketcher.Constraint("Coincident", 5, 2, 6, 2),
    Sketcher.Constraint("Coincident", 6, 1, 7, 1),
    Sketcher.Constraint("Coincident", 7, 2, 4, 1),
    Sketcher.Constraint("Coincident", 8, 2, 9, 1),
    Sketcher.Constraint("Coincident", 9, 2, 10, 2),
    Sketcher.Constraint("Coincident", 10, 1, 11, 1),
    Sketcher.Constraint("Coincident", 11, 2, 8, 1),
    Sketcher.Constraint("Coincident", 0, 3, -1, 1),
    Sketcher.Constraint("Coincident", 2, 3, -1, 1),
    Sketcher.Constraint("Coincident", 4, 3, -1, 1),
    Sketcher.Constraint("Coincident", 6, 3, -1, 1),
    Sketcher.Constraint("Coincident", 8, 3, -1, 1),
    Sketcher.Constraint("Coincident", 10, 3, -1, 1),
    Sketcher.Constraint("Equal", 0, 4),
    Sketcher.Constraint("Equal", 2, 6),
    Sketcher.Constraint("Equal", 4, 8),
    Sketcher.Constraint("Equal", 6, 10),
    Sketcher.Constraint("Horizontal", 1, 2, 2, 1),
    Sketcher.Constraint("Horizontal", 0, 2, 3, 2),
    Sketcher.Constraint("Horizontal", 7, 2, 8, 2),
    Sketcher.Constraint("Horizontal", 6, 1, 9, 2),
    Sketcher.Constraint("Horizontal", 5, 2, 10, 1),
    Sketcher.Constraint("Horizontal", 4, 2, 11, 2),
    Sketcher.Constraint("Radius", 0, 22.5),
    Sketcher.Constraint("Radius", 2, 24.2),
    Sketcher.Constraint("DistanceX", 1, 2, 2, 1, 7.0),
    Sketcher.Constraint("DistanceY", 5, 2, 6, 1, 3.5),
    Sketcher.Constraint("DistanceY", 4, 2, 0, 2, 4.609801),
    Sketcher.Constraint("DistanceY", 7, 2, 6, 1, 1.579698),
    Sketcher.Constraint("DistanceX", 4, 2, -1, 1, 13.94988),
    Sketcher.Constraint("DistanceX", 5, 2, -1, 1, 15.003871),
])
pocket7 = body.newObject("PartDesign::Pocket", "Pocket006")
pocket7.Profile = sketch11
pocket7.Length = 4
pocket7.Reversed = True

# Sketch on XY plane
sketch12 = body.newObject("Sketcher::SketchObject", "Sketch011")
sketch12.AttachmentSupport = (doc.getObject("XY_Plane"), [""])
sketch12.MapMode = "FlatFace"
sketch12.addGeometry([
    Part.LineSegment(Vector(-26, -14.5, 0), Vector(-26, -12.1, 0)),  # 0
    Part.LineSegment(Vector(-26, -12.1, 0), Vector(-22.5, -12.1, 0)),  # 1
    Part.LineSegment(Vector(-22.5, -12.1, 0), Vector(-22.5, -16, 0)),  # 2
    Part.LineSegment(Vector(-22.5, -16, 0), Vector(-26, -14.5, 0)),  # 3
    Part.LineSegment(Vector(-22.5, 12.1, 0), Vector(-26, 12.1, 0)),  # 4
    Part.LineSegment(Vector(-26, 12.1, 0), Vector(-26, 14.5, 0)),  # 5
    Part.LineSegment(Vector(-26, 14.5, 0), Vector(-22.5, 16, 0)),  # 6
    Part.LineSegment(Vector(-22.5, 16, 0), Vector(-22.5, 12.1, 0)),  # 7
    Part.LineSegment(Vector(24.5, -17.4, 0), Vector(24.5, -12.1, 0)),  # 8
    Part.LineSegment(Vector(24.5, -12.1, 0), Vector(28, -12.1, 0)),  # 9
    Part.LineSegment(Vector(28, -12.1, 0), Vector(28, -15.4, 0)),  # 10
    Part.ArcOfCircle(Part.Circle(Vector(30.2, -23.2, 0), Vector(0, 0, 1), 8), math.radians(106), math.radians(135)),  # 11
    Part.LineSegment(Vector(24.5, 12.1, 0), Vector(24.5, 17.4, 0)),  # 12
    Part.ArcOfCircle(Part.Circle(Vector(30.2, 23.1, 0), Vector(0, 0, 1), 8), math.radians(-135), math.radians(-106)),  # 13
    Part.LineSegment(Vector(28, 15.4, 0), Vector(28, 12.1, 0)),  # 14
    Part.LineSegment(Vector(28, 12.1, 0), Vector(24.5, 12.1, 0)),  # 15
], False)
sketch12.addConstraint([
    Sketcher.Constraint("Coincident", 0, 2, 1, 1),
    Sketcher.Constraint("Coincident", 1, 2, 2, 1),
    Sketcher.Constraint("Coincident", 2, 2, 3, 1),
    Sketcher.Constraint("Coincident", 3, 2, 0, 1),
    Sketcher.Constraint("Coincident", 4, 2, 5, 1),
    Sketcher.Constraint("Coincident", 5, 2, 6, 1),
    Sketcher.Constraint("Coincident", 6, 2, 7, 1),
    Sketcher.Constraint("Coincident", 7, 2, 4, 1),
    Sketcher.Constraint("Coincident", 8, 2, 9, 1),
    Sketcher.Constraint("Coincident", 9, 2, 10, 1),
    Sketcher.Constraint("Coincident", 10, 2, 11, 1),
    Sketcher.Constraint("Coincident", 11, 2, 8, 1),
    Sketcher.Constraint("Coincident", 12, 2, 13, 1),
    Sketcher.Constraint("Coincident", 13, 2, 14, 1),
    Sketcher.Constraint("Coincident", 14, 2, 15, 1),
    Sketcher.Constraint("Coincident", 15, 2, 12, 1),
    Sketcher.Constraint("Vertical", 0),
    Sketcher.Constraint("Horizontal", 1),
    Sketcher.Constraint("Vertical", 2),
    Sketcher.Constraint("Horizontal", 4),
    Sketcher.Constraint("Vertical", 5),
    Sketcher.Constraint("Vertical", 7),
    Sketcher.Constraint("Vertical", 8),
    Sketcher.Constraint("Horizontal", 9),
    Sketcher.Constraint("Vertical", 10),
    Sketcher.Constraint("Vertical", 12),
    Sketcher.Constraint("Vertical", 14),
    Sketcher.Constraint("Horizontal", 15),
    Sketcher.Constraint("Equal", 11, 13),
    Sketcher.Constraint("Symmetric", 11, 3, 13, 3, -1),
    Sketcher.Constraint("Symmetric", 0, 2, 4, 2, -1),
    Sketcher.Constraint("Symmetric", 2, 2, 6, 2, -1),
    Sketcher.Constraint("Symmetric", 9, 2, 14, 2, -1),
    Sketcher.Constraint("Horizontal", 1, 2, 8, 2),
    Sketcher.Constraint("Vertical", 11, 2, 12, 2),
    Sketcher.Constraint("Equal", 4, 9),
    Sketcher.Constraint("Equal", 0, 5),
    Sketcher.Constraint("DistanceX", 1, 1, 1, 2, 3.5),
    Sketcher.Constraint("DistanceY", 8, 1, 8, 2, 5.4),
    Sketcher.Constraint("DistanceY", 2, 2, -1, 1, 16.0),
    Sketcher.Constraint("DistanceY", 3, 2, 5, 2, 29.0),
    Sketcher.Constraint("DistanceY", 0, 1, 0, 2, 2.45),
    Sketcher.Constraint("DistanceY", 11, 3, 13, 3, 46.3),
    Sketcher.Constraint("Radius", 11, 8.02574),
    Sketcher.Constraint("DistanceX", -1, 1, 11, 3, 30.189502),
    Sketcher.Constraint("DistanceX", 0, 2, -1, 1, 26.001992),
])
pad5 = body.newObject("PartDesign::Pad", "Pad004")
pad5.Profile = sketch12
pad5.Length = 4
pad5.Reversed = True

# Sketch on XZ plane
sketch13 = body.newObject("Sketcher::SketchObject", "Sketch012")
sketch13.AttachmentSupport = (doc.getObject("XZ_Plane"), [""])
sketch13.MapMode = "FlatFace"
sketch13.AttachmentOffset = App.Placement(Vector(0, 0, 12.05), App.Rotation())
sketch13.addGeometry([
    Part.LineSegment(Vector(24.9, 6.5, 0), Vector(28, 6.5, 0)),  # 0
    Part.LineSegment(Vector(28, 6.5, 0), Vector(28, 2.1, 0)),  # 1
    Part.ArcOfCircle(Part.Circle(Vector(20.5, 0, 0), Vector(0, 0, 1), 7.8), math.radians(16), math.radians(56)),  # 2
    Part.ArcOfCircle(Part.Circle(Vector(26.2, -2.3, 0), Vector(0, 0, 1), 1.7), math.radians(-172), math.radians(-98)),  # 3
    Part.LineSegment(Vector(26, -4, 0), Vector(24.5, -4, 0)),  # 4
    Part.LineSegment(Vector(24.5, -4, 0), Vector(24.5, -2.5, 0)),  # 5
    Part.LineSegment(Vector(-22.5, -2.5, 0), Vector(-22.5, -4, 0)),  # 6
    Part.LineSegment(Vector(-22.5, -4, 0), Vector(-24, -4, 0)),  # 7
    Part.ArcOfCircle(Part.Circle(Vector(-24.2, -2.3, 0), Vector(0, 0, 1), 1.7), math.radians(-82), math.radians(-8)),  # 8
    Part.LineSegment(Vector(-26, 2.1, 0), Vector(-26, 6.5, 0)),  # 9
    Part.LineSegment(Vector(-26, 6.5, 0), Vector(-22.8, 6.5, 0)),  # 10
    Part.ArcOfCircle(Part.Circle(Vector(-18.5, 0, 0), Vector(0, 0, 1), 7.8), math.radians(124), math.radians(164)),  # 11
], False)
sketch13.addConstraint([
    Sketcher.Constraint("Coincident", 0, 2, 1, 1),
    Sketcher.Constraint("Coincident", 1, 2, 2, 1),
    Sketcher.Constraint("Coincident", 2, 2, 0, 1),
    Sketcher.Constraint("Coincident", 3, 2, 4, 1),
    Sketcher.Constraint("Coincident", 4, 2, 5, 1),
    Sketcher.Constraint("Coincident", 5, 2, 3, 1),
    Sketcher.Constraint("Coincident", 6, 2, 7, 1),
    Sketcher.Constraint("Coincident", 7, 2, 8, 1),
    Sketcher.Constraint("Coincident", 8, 2, 6, 1),
    Sketcher.Constraint("Coincident", 9, 2, 10, 1),
    Sketcher.Constraint("Coincident", 10, 2, 11, 1),
    Sketcher.Constraint("Coincident", 11, 2, 9, 1),
    Sketcher.Constraint("Horizontal", 0),
    Sketcher.Constraint("Vertical", 1),
    Sketcher.Constraint("Horizontal", 4),
    Sketcher.Constraint("Vertical", 5),
    Sketcher.Constraint("Vertical", 6),
    Sketcher.Constraint("Horizontal", 7),
    Sketcher.Constraint("Vertical", 9),
    Sketcher.Constraint("Horizontal", 10),
    Sketcher.Constraint("Equal", 3, 8),
    Sketcher.Constraint("Equal", 2, 11),
    Sketcher.Constraint("PointOnObject", 2, 3, -1),
    Sketcher.Constraint("PointOnObject", 11, 3, -1),
    Sketcher.Constraint("Horizontal", 3, 3, 8, 3),
    Sketcher.Constraint("Horizontal", 4, 2, 6, 2),
    Sketcher.Constraint("Horizontal", 5, 2, 8, 2),
    Sketcher.Constraint("Horizontal", 2, 2, 9, 2),
    Sketcher.Constraint("Horizontal", 1, 2, 11, 2),
    Sketcher.Constraint("Equal", 7, 5),
    Sketcher.Constraint("Radius", 2, 7.83),
    Sketcher.Constraint("Radius", 3, 1.72),
    Sketcher.Constraint("DistanceY", 1, 2, 1, 1, 4.4),
    Sketcher.Constraint("DistanceY", 3, 2, -1, 1, 4.0),
    Sketcher.Constraint("DistanceX", 4, 2, 4, 1, 1.46),
    Sketcher.Constraint("DistanceY", -1, 1, 0, 2, 6.5),
    Sketcher.Constraint("DistanceX", 4, 2, 1, 2, 3.5),
    Sketcher.Constraint("DistanceX", 9, 2, 8, 2, 3.5),
    Sketcher.Constraint("DistanceX", -1, 1, 0, 2, 28.039502),
    Sketcher.Constraint("DistanceX", 8, 3, -1, 1, 24.204771),
])
pocket8 = body.newObject("PartDesign::Pocket", "Pocket007")
pocket8.Profile = sketch13
pocket8.Type = "ThroughAll"
pocket8.Midplane = True

doc.recompute()
